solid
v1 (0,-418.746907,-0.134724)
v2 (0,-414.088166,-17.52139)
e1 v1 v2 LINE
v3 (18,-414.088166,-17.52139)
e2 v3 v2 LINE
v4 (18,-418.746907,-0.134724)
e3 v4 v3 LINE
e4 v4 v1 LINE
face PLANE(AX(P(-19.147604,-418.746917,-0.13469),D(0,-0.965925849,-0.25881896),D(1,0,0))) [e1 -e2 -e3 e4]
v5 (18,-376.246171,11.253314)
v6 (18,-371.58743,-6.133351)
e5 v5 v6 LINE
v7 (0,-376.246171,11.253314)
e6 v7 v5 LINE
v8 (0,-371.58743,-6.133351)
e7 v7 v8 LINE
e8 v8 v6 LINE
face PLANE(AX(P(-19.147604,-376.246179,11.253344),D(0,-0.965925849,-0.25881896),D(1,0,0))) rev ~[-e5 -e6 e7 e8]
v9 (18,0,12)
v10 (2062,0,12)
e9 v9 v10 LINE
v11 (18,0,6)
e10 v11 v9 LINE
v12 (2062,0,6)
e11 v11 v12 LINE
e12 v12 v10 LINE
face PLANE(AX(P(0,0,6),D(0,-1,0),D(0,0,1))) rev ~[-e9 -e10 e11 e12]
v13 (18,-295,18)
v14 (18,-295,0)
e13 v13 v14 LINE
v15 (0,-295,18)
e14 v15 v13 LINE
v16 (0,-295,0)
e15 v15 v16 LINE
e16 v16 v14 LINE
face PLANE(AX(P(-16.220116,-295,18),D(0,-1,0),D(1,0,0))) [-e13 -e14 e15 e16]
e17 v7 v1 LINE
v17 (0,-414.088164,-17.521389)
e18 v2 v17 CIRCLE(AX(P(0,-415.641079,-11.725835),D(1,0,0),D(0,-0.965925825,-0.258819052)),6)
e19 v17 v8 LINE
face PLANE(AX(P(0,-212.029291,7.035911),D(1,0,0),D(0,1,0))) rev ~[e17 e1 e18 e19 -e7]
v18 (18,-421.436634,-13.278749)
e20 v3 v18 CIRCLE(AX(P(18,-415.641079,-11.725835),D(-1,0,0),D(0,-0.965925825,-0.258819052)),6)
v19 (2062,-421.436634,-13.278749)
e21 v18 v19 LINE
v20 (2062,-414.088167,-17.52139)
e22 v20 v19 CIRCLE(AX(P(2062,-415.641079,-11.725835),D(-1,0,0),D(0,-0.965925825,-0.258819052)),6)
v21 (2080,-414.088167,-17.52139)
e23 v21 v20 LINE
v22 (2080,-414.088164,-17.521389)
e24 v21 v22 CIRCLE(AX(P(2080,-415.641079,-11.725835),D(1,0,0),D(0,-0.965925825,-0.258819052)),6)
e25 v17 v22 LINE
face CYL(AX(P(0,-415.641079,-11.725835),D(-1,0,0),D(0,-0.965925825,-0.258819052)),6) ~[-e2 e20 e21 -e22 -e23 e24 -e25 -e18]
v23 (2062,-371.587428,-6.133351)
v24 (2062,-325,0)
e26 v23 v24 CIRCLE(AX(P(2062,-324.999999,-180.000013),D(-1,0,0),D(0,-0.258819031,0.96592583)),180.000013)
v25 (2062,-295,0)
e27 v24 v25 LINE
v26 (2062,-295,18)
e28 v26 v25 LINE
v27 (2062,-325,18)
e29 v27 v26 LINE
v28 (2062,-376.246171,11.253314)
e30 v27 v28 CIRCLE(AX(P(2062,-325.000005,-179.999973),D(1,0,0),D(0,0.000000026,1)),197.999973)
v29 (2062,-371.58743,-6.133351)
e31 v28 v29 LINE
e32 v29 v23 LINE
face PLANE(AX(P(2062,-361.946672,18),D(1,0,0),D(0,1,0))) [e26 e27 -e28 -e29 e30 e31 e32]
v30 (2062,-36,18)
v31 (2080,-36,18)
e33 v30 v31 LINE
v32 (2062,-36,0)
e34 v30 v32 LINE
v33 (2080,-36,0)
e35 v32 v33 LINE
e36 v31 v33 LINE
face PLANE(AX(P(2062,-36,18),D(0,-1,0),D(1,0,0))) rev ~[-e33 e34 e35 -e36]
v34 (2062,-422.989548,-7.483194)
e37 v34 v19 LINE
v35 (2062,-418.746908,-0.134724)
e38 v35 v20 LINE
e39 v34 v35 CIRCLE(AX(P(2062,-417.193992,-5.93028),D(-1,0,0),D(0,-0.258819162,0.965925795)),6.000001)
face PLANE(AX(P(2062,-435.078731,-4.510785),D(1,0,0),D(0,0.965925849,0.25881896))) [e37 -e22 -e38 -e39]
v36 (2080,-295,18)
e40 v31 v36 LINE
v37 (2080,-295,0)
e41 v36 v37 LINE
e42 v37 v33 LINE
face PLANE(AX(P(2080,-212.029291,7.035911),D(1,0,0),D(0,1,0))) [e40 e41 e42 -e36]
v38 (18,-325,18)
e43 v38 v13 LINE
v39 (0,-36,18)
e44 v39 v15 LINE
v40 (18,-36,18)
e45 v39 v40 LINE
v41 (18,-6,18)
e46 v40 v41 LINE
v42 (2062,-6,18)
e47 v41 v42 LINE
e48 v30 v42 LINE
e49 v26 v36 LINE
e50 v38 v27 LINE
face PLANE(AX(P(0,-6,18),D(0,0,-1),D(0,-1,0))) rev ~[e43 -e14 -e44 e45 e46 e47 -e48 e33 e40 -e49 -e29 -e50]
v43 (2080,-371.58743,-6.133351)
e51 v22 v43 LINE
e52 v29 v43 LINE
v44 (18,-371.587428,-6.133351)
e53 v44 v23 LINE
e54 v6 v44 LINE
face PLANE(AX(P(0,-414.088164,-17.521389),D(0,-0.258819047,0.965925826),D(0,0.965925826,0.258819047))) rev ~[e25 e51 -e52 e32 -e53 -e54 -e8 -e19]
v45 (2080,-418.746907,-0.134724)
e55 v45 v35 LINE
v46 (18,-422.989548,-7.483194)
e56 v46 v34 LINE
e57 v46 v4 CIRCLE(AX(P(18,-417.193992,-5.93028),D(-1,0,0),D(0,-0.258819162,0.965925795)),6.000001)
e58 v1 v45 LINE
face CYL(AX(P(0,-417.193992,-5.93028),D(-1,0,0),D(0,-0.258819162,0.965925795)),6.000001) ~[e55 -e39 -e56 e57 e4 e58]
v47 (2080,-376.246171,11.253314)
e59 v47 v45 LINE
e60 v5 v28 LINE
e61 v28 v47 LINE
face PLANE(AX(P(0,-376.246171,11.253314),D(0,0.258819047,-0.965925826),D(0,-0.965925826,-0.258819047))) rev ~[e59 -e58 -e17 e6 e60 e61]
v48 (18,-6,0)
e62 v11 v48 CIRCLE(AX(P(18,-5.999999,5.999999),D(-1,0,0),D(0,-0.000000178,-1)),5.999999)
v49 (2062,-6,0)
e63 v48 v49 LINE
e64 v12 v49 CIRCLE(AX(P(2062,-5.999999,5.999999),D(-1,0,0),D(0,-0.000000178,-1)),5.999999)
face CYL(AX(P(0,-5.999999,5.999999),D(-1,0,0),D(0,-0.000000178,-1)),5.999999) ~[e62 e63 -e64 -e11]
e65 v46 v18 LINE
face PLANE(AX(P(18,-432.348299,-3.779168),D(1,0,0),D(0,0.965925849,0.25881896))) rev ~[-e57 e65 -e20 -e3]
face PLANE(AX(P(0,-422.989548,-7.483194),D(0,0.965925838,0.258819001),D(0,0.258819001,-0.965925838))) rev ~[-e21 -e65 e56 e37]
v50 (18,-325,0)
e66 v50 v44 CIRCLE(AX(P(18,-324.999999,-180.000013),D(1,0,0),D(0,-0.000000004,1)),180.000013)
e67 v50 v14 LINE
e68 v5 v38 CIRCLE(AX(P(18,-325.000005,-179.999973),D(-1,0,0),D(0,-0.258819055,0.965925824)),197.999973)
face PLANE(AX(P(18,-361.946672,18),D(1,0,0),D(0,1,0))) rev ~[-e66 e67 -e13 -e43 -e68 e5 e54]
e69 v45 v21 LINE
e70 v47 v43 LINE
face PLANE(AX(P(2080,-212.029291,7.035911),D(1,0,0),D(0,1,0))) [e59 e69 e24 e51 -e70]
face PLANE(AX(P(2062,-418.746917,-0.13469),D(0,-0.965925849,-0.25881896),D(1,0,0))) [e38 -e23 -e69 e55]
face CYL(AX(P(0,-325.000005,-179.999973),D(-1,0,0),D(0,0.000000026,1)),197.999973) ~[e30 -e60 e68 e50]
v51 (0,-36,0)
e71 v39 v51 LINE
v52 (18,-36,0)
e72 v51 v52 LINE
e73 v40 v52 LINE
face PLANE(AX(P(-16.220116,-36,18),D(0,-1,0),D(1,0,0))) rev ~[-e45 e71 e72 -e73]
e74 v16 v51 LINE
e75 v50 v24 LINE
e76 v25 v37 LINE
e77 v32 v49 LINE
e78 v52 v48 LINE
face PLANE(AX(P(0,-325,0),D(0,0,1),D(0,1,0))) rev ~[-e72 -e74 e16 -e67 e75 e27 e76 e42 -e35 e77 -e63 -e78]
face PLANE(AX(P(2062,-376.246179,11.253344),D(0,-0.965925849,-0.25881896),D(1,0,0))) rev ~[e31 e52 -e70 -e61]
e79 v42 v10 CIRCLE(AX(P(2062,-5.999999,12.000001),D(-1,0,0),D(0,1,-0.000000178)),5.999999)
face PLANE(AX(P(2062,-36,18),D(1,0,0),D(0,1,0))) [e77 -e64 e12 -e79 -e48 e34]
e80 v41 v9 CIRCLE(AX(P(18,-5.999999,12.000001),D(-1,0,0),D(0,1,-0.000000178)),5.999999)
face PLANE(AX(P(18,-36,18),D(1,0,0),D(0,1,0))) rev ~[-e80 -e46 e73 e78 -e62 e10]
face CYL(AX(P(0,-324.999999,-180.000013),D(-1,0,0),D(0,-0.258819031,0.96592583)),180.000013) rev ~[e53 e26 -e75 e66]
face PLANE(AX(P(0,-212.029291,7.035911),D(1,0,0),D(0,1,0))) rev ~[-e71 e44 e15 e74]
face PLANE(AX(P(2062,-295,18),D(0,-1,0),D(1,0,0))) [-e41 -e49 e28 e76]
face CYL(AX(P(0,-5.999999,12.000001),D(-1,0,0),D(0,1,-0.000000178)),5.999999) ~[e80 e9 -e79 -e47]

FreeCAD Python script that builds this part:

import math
import FreeCAD as App
import Part
import Sketcher


def add_polygon(sketch, points):
    """Adds a closed chain of lines whose ends are joined by coincident constraints."""
    first, n = sketch.GeometryCount, len(points)
    for a, b in zip(points, points[1:] + points[:1]):
        sketch.addGeometry(Part.LineSegment(App.Vector(*a, 0), App.Vector(*b, 0)), False)
    for i in range(n):
        sketch.addConstraint(Sketcher.Constraint("Coincident", first + i, 2, first + (i + 1) % n, 1))

doc = App.newDocument("Part")
body = doc.addObject("PartDesign::Body", "Body")

# Sketch on YZ plane
sketch1 = body.newObject("Sketcher::SketchObject", "Sketch")
sketch1.AttachmentSupport = (doc.getObject("YZ_Plane"), [""])
sketch1.MapMode = "FlatFace"
sketch1.addGeometry([
    Part.LineSegment(App.Vector(-325, 0, 0), App.Vector(-6, 0, 0)),  # 0
    Part.ArcOfCircle(Part.Circle(App.Vector(-5.999999, 5.999999, 0), App.Vector(0, 0, 1), 5.999999), math.radians(-90.00001), math.radians(0.00001)),  # 1
    Part.LineSegment(App.Vector(0, 6, 0), App.Vector(0, 12, 0)),  # 2
    Part.ArcOfCircle(Part.Circle(App.Vector(-5.999999, 12.000001, 0), App.Vector(0, 0, 1), 5.999999), math.radians(-0.00001), math.radians(90.00001)),  # 3
    Part.LineSegment(App.Vector(-6, 18, 0), App.Vector(-325, 18, 0)),  # 4
    Part.ArcOfCircle(Part.Circle(App.Vector(-325.000005, -179.999973, 0), App.Vector(0, 0, 1), 197.999973), math.radians(89.999999), math.radians(105.000001)),  # 5
    Part.LineSegment(App.Vector(-376.246171, 11.253314, 0), App.Vector(-418.746907, -0.134724, 0)),  # 6
    Part.ArcOfCircle(Part.Circle(App.Vector(-417.193992, -5.93028, 0), App.Vector(0, 0, 1), 6.000001), math.radians(105.000007), math.radians(194.999995)),  # 7
    Part.LineSegment(App.Vector(-422.989548, -7.483194, 0), App.Vector(-421.436634, -13.278749, 0)),  # 8
    Part.ArcOfCircle(Part.Circle(App.Vector(-415.641079, -11.725835, 0), App.Vector(0, 0, 1), 6), math.radians(-165), math.radians(-74.999987)),  # 9
    Part.LineSegment(App.Vector(-414.088164, -17.521389, 0), App.Vector(-371.587428, -6.133351, 0)),  # 10
    Part.ArcOfCircle(Part.Circle(App.Vector(-324.999999, -180.000013, 0), App.Vector(0, 0, 1), 180.000013), math.radians(90), math.radians(104.999999)),  # 11
], False)
sketch1.addConstraint([
    Sketcher.Constraint("Coincident", 0, 2, 1, 1),
    Sketcher.Constraint("Coincident", 1, 2, 2, 1),
    Sketcher.Constraint("Coincident", 2, 2, 3, 1),
    Sketcher.Constraint("Coincident", 3, 2, 4, 1),
    Sketcher.Constraint("Coincident", 4, 2, 5, 1),
    Sketcher.Constraint("Coincident", 5, 2, 6, 1),
    Sketcher.Constraint("Coincident", 6, 2, 7, 1),
    Sketcher.Constraint("Coincident", 7, 2, 8, 1),
    Sketcher.Constraint("Coincident", 8, 2, 9, 1),
    Sketcher.Constraint("Coincident", 9, 2, 10, 1),
    Sketcher.Constraint("Coincident", 10, 2, 11, 2),
    Sketcher.Constraint("Coincident", 11, 1, 0, 1),
    Sketcher.Constraint("Horizontal", 0),
    Sketcher.Constraint("Vertical", 2),
    Sketcher.Constraint("Horizontal", 4),
    Sketcher.Constraint("PointOnObject", 0, 2, -1),
    Sketcher.Constraint("PointOnObject", 1, 2, -2),
    Sketcher.Constraint("Radius", 1, 5.999999),
    Sketcher.Constraint("Radius", 3, 5.999999),
    Sketcher.Constraint("Radius", 7, 6.000001),
    Sketcher.Constraint("Radius", 9, 6.0),
    Sketcher.Constraint("DistanceX", 0, 1, 0, 2, 319.0),
    Sketcher.Constraint("DistanceX", 4, 2, 4, 1, 319.0),
    Sketcher.Constraint("DistanceY", 2, 1, 2, 2, 6.0),
    Sketcher.Constraint("Distance", 6, 44.0),
    Sketcher.Constraint("Distance", 8, 6.0),
    Sketcher.Constraint("Distance", 10, 44.0),
    Sketcher.Constraint("DistanceY", -1, 1, 3, 3, 12.000001),
    Sketcher.Constraint("DistanceX", 11, 3, -1, 1, 324.999999),
    Sketcher.Constraint("DistanceX", 0, 2, -1, 1, 6.0),
    Sketcher.Constraint("DistanceY", -1, 1, 1, 2, 6.0),
    Sketcher.Constraint("DistanceX", 3, 2, -1, 1, 6.0),
    Sketcher.Constraint("Radius", 5, 197.999973),
    Sketcher.Constraint("Radius", 11, 180.000013),
    Sketcher.Constraint("DistanceX", 6, 2, 5, 3, 93.746902),
    Sketcher.Constraint("DistanceX", 7, 3, -1, 1, 417.193992),
    Sketcher.Constraint("DistanceY", 7, 3, -1, 1, 5.93028),
    Sketcher.Constraint("DistanceX", 9, 3, -1, 1, 415.641079),
    Sketcher.Constraint("DistanceX", 5, 2, -1, 1, 376.246171),
    Sketcher.Constraint("DistanceX", 7, 2, -1, 1, 422.989548),
    Sketcher.Constraint("DistanceY", 8, 2, -1, 1, 13.278749),
    Sketcher.Constraint("DistanceY", 9, 2, -1, 1, 17.521389),
])
pad1 = body.newObject("PartDesign::Pad", "Pad")
pad1.Profile = sketch1
pad1.Length = 2080

# Sketch on XY plane
sketch2 = body.newObject("Sketcher::SketchObject", "Sketch001")
sketch2.AttachmentSupport = (doc.getObject("XY_Plane"), [""])
sketch2.MapMode = "FlatFace"
sketch2.AttachmentOffset = App.Placement(App.Vector(0, 0, 18), App.Rotation())
add_polygon(sketch2, [(2062, 15), (2062, -36), (2102, -36), (2102, 15)])  # lines 0-3
add_polygon(sketch2, [(2062, -295), (2062, -362), (2102, -362), (2102, -295)])  # lines 4-7
add_polygon(sketch2, [(-16, -295), (-16, -362), (18, -362), (18, -295)])  # lines 8-11
add_polygon(sketch2, [(-16, 27), (-16, -36), (18, -36), (18, 27)])  # lines 12-15
sketch2.addConstraint([
    Sketcher.Constraint("Vertical", 0),
    Sketcher.Constraint("Horizontal", 1),
    Sketcher.Constraint("Vertical", 2),
    Sketcher.Constraint("Horizontal", 3),
    Sketcher.Constraint("Vertical", 4),
    Sketcher.Constraint("Horizontal", 5),
    Sketcher.Constraint("Vertical", 6),
    Sketcher.Constraint("Horizontal", 7),
    Sketcher.Constraint("Vertical", 8),
    Sketcher.Constraint("Horizontal", 9),
    Sketcher.Constraint("Vertical", 10),
    Sketcher.Constraint("Horizontal", 11),
    Sketcher.Constraint("Vertical", 12),
    Sketcher.Constraint("Horizontal", 13),
    Sketcher.Constraint("Vertical", 14),
    Sketcher.Constraint("Horizontal", 15),
    Sketcher.Constraint("Horizontal", 5, 2, 8, 2),
    Sketcher.Constraint("Horizontal", 7, 2, 10, 2),
    Sketcher.Constraint("Horizontal", 1, 2, 12, 2),
    Sketcher.Constraint("Vertical", 3, 2, 4, 2),
    Sketcher.Constraint("Vertical", 2, 2, 5, 2),
    Sketcher.Constraint("Vertical", 11, 2, 12, 2),
    Sketcher.Constraint("Vertical", 10, 2, 13, 2),
    Sketcher.Constraint("DistanceX", -1, 1, 0, 2, 2062.0),
    Sketcher.Constraint("DistanceY", 0, 2, -1, 1, 36.0),
    Sketcher.Constraint("DistanceY", 6, 2, -1, 1, 295.0),
    Sketcher.Constraint("DistanceX", -1, 1, 9, 2, 18.0),
    Sketcher.Constraint("DistanceY", 4, 2, 4, 1, 66.946672),
    Sketcher.Constraint("DistanceX", 1, 1, 1, 2, 39.969242),
    Sketcher.Constraint("DistanceX", 9, 1, 9, 2, 34.220117),
    Sketcher.Constraint("DistanceY", 0, 2, 0, 1, 51.200114),
    Sketcher.Constraint("DistanceY", 12, 2, 12, 1, 62.673524),
])
pocket1 = body.newObject("PartDesign::Pocket", "Pocket")
pocket1.Profile = sketch2
pocket1.Length = 25

# Sketch on an angled plane
sketch3 = body.newObject("Sketcher::SketchObject", "Sketch002")
sketch3.Placement = App.Placement(App.Vector(0, -28.017043, 104.561027), App.Rotation(App.Vector(1, 0, 0), App.Vector(0, 0.965925849, 0.25881896), App.Vector(0, -0.25881896, 0.965925849), "ZXY"))
add_polygon(sketch3, [(-19, -339), (-19, -361), (18, -361), (18, -339)])  # lines 0-3
add_polygon(sketch3, [(-19, -405), (-19, -419), (18, -419), (18, -405)])  # lines 4-7
add_polygon(sketch3, [(2062, -337), (2062, -361), (2094, -361), (2094, -337)])  # lines 8-11
add_polygon(sketch3, [(2062, -405), (2062, -421), (2094, -421), (2094, -405)])  # lines 12-15
sketch3.addConstraint([
    Sketcher.Constraint("Vertical", 0),
    Sketcher.Constraint("Horizontal", 1),
    Sketcher.Constraint("Vertical", 2),
    Sketcher.Constraint("Horizontal", 3),
    Sketcher.Constraint("Vertical", 4),
    Sketcher.Constraint("Horizontal", 5),
    Sketcher.Constraint("Vertical", 6),
    Sketcher.Constraint("Horizontal", 7),
    Sketcher.Constraint("Vertical", 8),
    Sketcher.Constraint("Horizontal", 9),
    Sketcher.Constraint("Vertical", 10),
    Sketcher.Constraint("Horizontal", 11),
    Sketcher.Constraint("Vertical", 12),
    Sketcher.Constraint("Horizontal", 13),
    Sketcher.Constraint("Vertical", 14),
    Sketcher.Constraint("Horizontal", 15),
    Sketcher.Constraint("Horizontal", 1, 2, 8, 2),
    Sketcher.Constraint("Horizontal", 7, 2, 14, 2),
    Sketcher.Constraint("Vertical", 3, 2, 4, 2),
    Sketcher.Constraint("Vertical", 2, 2, 5, 2),
    Sketcher.Constraint("Vertical", 11, 2, 12, 2),
    Sketcher.Constraint("Vertical", 10, 2, 13, 2),
    Sketcher.Constraint("DistanceX", -1, 1, 1, 2, 18.0),
    Sketcher.Constraint("DistanceX", -1, 1, 8, 2, 2062.0),
    Sketcher.Constraint("DistanceY", 6, 2, 1, 2, 44.0),
    Sketcher.Constraint("DistanceX", 9, 1, 9, 2, 32.29431),
    Sketcher.Constraint("DistanceX", 1, 1, 1, 2, 37.147605),
    Sketcher.Constraint("DistanceY", 0, 2, 0, 1, 21.549247),
    Sketcher.Constraint("DistanceY", 4, 2, 4, 1, 14.081187),
    Sketcher.Constraint("DistanceY", 8, 2, 8, 1, 23.482673),
    Sketcher.Constraint("DistanceY", 12, 2, 12, 1, 16.907938),
    Sketcher.Constraint("DistanceY", 0, 2, -1, 1, 360.513321),
])
pocket2 = body.newObject("PartDesign::Pocket", "Pocket001")
pocket2.Profile = sketch3
pocket2.Length = 25

doc.recompute()
